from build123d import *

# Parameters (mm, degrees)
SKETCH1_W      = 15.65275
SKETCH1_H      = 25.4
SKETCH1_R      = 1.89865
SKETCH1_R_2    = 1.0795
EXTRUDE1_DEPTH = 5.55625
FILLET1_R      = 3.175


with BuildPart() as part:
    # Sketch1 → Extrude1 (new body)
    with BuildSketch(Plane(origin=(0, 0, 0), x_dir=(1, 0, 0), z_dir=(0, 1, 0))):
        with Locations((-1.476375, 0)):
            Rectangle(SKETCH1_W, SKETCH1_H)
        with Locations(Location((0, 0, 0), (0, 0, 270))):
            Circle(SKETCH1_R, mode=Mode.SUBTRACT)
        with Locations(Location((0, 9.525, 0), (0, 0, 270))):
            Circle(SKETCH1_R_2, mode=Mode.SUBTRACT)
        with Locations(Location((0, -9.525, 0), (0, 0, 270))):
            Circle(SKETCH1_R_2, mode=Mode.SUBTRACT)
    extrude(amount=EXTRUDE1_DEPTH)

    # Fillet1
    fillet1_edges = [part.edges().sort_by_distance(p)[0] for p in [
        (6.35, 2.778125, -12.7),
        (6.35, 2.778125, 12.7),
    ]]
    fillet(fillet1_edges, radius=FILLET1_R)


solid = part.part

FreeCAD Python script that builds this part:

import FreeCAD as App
import Part
import Sketcher

V = App.Vector
Q = App.Units.Quantity


def edges_at(feature, points):
    """Names of the edges that pass closest to the given points."""
    edges = feature.Shape.Edges
    near = lambda p: min(range(len(edges)), key=lambda i: edges[i].distToShape(Part.Vertex(*p))[0])
    return sorted({f"Edge{near(p) + 1}" for p in points})

doc = App.newDocument("Part")
params = doc.addObject("Spreadsheet::Sheet", "Params")
for row, (alias, value) in enumerate([
    ("sketch1_height", "1 in"),
    ("sketch1_diameter", "0.085 in"),
    ("pad1_length", "0.21875 in"),
    ("fillet_radius", "0.125 in"),
], start=1):
    params.set(f"A{row}", alias)
    params.set(f"B{row}", "=" + value)
    params.setAlias(f"B{row}", alias)

body = doc.addObject("PartDesign::Body", "Body")

sketch1 = doc.addObject("Sketcher::SketchObject", "Sketch")
body.addObject(sketch1)
sketch1.AttachmentSupport = (doc.XZ_Plane, [""])
sketch1.MapMode = "FlatFace"
sketch1.addGeometry(Part.LineSegment(V(-9.30275, -12.7, 0), V(-9.30275, 12.7, 0)), False)
sketch1.addGeometry(Part.LineSegment(V(-9.30275, 12.7, 0), V(6.35, 12.7, 0)), False)
sketch1.addGeometry(Part.LineSegment(V(6.35, 12.7, 0), V(6.35, -12.7, 0)), False)
sketch1.addGeometry(Part.LineSegment(V(6.35, -12.7, 0), V(-9.30275, -12.7, 0)), False)
sketch1.addGeometry(Part.Circle(V(0, 9.525, 0), V(0, 0, 1), 1.0795), False)
sketch1.addGeometry(Part.Circle(V(0, 0, 0), V(0, 0, 1), 1.89865), False)
sketch1.addGeometry(Part.Circle(V(0, -9.525, 0), V(0, 0, 1), 1.0795), False)
sketch1.addConstraint(Sketcher.Constraint("Coincident", 0, 2, 1, 1))
sketch1.addConstraint(Sketcher.Constraint("Coincident", 1, 2, 2, 1))
sketch1.addConstraint(Sketcher.Constraint("Coincident", 2, 2, 3, 1))
sketch1.addConstraint(Sketcher.Constraint("Coincident", 3, 2, 0, 1))
sketch1.addConstraint(Sketcher.Constraint("Vertical", 0))
sketch1.addConstraint(Sketcher.Constraint("Horizontal", 1))
sketch1.addConstraint(Sketcher.Constraint("Vertical", 2))
sketch1.addConstraint(Sketcher.Constraint("Horizontal", 3))
sketch1.addConstraint(Sketcher.Constraint("Coincident", 5, 3, -1, 1))
sketch1.addConstraint(Sketcher.Constraint("Equal", 4, 6))
sketch1.addConstraint(Sketcher.Constraint("Symmetric", 4, 3, 6, 3, -1, 1))
sketch1.addConstraint(Sketcher.Constraint("PointOnObject", 4, 3, -2))
sketch1.addConstraint(Sketcher.Constraint("DistanceY", 0, 1, 0, 2, Q("1 in")))
sketch1.addConstraint(Sketcher.Constraint("Diameter", 4, Q("0.085 in")))
sketch1.addConstraint(Sketcher.Constraint("Diameter", 5, Q("0.1495 in")))
sketch1.addConstraint(Sketcher.Constraint("DistanceY", -1, 1, 0, 2, Q("0.5 in")))
sketch1.addConstraint(Sketcher.Constraint("DistanceX", -1, 1, 1, 2, Q("0.25 in")))
sketch1.addConstraint(Sketcher.Constraint("DistanceY", 6, 3, 4, 3, Q("0.75 in")))
sketch1.addConstraint(Sketcher.Constraint("DistanceX", 1, 1, 1, 2, Q("15.65275 mm")))
sketch1.setExpression("Constraints[12]", "Params.sketch1_height")
sketch1.setExpression("Constraints[13]", "Params.sketch1_diameter")
pad1 = doc.addObject("PartDesign::Pad", "Pad")
body.addObject(pad1)
pad1.Profile = sketch1
pad1.setExpression("Length", "Params.pad1_length")
pad1.Reversed = True
doc.recompute()

fillet = doc.addObject("PartDesign::Fillet", "Fillet")
body.addObject(fillet)
fillet.Base = (pad1, edges_at(pad1, [(6.35, 2.778, -12.7), (6.35, 2.778, 12.7)]))
fillet.setExpression("Radius", "Params.fillet_radius")

doc.recompute()
